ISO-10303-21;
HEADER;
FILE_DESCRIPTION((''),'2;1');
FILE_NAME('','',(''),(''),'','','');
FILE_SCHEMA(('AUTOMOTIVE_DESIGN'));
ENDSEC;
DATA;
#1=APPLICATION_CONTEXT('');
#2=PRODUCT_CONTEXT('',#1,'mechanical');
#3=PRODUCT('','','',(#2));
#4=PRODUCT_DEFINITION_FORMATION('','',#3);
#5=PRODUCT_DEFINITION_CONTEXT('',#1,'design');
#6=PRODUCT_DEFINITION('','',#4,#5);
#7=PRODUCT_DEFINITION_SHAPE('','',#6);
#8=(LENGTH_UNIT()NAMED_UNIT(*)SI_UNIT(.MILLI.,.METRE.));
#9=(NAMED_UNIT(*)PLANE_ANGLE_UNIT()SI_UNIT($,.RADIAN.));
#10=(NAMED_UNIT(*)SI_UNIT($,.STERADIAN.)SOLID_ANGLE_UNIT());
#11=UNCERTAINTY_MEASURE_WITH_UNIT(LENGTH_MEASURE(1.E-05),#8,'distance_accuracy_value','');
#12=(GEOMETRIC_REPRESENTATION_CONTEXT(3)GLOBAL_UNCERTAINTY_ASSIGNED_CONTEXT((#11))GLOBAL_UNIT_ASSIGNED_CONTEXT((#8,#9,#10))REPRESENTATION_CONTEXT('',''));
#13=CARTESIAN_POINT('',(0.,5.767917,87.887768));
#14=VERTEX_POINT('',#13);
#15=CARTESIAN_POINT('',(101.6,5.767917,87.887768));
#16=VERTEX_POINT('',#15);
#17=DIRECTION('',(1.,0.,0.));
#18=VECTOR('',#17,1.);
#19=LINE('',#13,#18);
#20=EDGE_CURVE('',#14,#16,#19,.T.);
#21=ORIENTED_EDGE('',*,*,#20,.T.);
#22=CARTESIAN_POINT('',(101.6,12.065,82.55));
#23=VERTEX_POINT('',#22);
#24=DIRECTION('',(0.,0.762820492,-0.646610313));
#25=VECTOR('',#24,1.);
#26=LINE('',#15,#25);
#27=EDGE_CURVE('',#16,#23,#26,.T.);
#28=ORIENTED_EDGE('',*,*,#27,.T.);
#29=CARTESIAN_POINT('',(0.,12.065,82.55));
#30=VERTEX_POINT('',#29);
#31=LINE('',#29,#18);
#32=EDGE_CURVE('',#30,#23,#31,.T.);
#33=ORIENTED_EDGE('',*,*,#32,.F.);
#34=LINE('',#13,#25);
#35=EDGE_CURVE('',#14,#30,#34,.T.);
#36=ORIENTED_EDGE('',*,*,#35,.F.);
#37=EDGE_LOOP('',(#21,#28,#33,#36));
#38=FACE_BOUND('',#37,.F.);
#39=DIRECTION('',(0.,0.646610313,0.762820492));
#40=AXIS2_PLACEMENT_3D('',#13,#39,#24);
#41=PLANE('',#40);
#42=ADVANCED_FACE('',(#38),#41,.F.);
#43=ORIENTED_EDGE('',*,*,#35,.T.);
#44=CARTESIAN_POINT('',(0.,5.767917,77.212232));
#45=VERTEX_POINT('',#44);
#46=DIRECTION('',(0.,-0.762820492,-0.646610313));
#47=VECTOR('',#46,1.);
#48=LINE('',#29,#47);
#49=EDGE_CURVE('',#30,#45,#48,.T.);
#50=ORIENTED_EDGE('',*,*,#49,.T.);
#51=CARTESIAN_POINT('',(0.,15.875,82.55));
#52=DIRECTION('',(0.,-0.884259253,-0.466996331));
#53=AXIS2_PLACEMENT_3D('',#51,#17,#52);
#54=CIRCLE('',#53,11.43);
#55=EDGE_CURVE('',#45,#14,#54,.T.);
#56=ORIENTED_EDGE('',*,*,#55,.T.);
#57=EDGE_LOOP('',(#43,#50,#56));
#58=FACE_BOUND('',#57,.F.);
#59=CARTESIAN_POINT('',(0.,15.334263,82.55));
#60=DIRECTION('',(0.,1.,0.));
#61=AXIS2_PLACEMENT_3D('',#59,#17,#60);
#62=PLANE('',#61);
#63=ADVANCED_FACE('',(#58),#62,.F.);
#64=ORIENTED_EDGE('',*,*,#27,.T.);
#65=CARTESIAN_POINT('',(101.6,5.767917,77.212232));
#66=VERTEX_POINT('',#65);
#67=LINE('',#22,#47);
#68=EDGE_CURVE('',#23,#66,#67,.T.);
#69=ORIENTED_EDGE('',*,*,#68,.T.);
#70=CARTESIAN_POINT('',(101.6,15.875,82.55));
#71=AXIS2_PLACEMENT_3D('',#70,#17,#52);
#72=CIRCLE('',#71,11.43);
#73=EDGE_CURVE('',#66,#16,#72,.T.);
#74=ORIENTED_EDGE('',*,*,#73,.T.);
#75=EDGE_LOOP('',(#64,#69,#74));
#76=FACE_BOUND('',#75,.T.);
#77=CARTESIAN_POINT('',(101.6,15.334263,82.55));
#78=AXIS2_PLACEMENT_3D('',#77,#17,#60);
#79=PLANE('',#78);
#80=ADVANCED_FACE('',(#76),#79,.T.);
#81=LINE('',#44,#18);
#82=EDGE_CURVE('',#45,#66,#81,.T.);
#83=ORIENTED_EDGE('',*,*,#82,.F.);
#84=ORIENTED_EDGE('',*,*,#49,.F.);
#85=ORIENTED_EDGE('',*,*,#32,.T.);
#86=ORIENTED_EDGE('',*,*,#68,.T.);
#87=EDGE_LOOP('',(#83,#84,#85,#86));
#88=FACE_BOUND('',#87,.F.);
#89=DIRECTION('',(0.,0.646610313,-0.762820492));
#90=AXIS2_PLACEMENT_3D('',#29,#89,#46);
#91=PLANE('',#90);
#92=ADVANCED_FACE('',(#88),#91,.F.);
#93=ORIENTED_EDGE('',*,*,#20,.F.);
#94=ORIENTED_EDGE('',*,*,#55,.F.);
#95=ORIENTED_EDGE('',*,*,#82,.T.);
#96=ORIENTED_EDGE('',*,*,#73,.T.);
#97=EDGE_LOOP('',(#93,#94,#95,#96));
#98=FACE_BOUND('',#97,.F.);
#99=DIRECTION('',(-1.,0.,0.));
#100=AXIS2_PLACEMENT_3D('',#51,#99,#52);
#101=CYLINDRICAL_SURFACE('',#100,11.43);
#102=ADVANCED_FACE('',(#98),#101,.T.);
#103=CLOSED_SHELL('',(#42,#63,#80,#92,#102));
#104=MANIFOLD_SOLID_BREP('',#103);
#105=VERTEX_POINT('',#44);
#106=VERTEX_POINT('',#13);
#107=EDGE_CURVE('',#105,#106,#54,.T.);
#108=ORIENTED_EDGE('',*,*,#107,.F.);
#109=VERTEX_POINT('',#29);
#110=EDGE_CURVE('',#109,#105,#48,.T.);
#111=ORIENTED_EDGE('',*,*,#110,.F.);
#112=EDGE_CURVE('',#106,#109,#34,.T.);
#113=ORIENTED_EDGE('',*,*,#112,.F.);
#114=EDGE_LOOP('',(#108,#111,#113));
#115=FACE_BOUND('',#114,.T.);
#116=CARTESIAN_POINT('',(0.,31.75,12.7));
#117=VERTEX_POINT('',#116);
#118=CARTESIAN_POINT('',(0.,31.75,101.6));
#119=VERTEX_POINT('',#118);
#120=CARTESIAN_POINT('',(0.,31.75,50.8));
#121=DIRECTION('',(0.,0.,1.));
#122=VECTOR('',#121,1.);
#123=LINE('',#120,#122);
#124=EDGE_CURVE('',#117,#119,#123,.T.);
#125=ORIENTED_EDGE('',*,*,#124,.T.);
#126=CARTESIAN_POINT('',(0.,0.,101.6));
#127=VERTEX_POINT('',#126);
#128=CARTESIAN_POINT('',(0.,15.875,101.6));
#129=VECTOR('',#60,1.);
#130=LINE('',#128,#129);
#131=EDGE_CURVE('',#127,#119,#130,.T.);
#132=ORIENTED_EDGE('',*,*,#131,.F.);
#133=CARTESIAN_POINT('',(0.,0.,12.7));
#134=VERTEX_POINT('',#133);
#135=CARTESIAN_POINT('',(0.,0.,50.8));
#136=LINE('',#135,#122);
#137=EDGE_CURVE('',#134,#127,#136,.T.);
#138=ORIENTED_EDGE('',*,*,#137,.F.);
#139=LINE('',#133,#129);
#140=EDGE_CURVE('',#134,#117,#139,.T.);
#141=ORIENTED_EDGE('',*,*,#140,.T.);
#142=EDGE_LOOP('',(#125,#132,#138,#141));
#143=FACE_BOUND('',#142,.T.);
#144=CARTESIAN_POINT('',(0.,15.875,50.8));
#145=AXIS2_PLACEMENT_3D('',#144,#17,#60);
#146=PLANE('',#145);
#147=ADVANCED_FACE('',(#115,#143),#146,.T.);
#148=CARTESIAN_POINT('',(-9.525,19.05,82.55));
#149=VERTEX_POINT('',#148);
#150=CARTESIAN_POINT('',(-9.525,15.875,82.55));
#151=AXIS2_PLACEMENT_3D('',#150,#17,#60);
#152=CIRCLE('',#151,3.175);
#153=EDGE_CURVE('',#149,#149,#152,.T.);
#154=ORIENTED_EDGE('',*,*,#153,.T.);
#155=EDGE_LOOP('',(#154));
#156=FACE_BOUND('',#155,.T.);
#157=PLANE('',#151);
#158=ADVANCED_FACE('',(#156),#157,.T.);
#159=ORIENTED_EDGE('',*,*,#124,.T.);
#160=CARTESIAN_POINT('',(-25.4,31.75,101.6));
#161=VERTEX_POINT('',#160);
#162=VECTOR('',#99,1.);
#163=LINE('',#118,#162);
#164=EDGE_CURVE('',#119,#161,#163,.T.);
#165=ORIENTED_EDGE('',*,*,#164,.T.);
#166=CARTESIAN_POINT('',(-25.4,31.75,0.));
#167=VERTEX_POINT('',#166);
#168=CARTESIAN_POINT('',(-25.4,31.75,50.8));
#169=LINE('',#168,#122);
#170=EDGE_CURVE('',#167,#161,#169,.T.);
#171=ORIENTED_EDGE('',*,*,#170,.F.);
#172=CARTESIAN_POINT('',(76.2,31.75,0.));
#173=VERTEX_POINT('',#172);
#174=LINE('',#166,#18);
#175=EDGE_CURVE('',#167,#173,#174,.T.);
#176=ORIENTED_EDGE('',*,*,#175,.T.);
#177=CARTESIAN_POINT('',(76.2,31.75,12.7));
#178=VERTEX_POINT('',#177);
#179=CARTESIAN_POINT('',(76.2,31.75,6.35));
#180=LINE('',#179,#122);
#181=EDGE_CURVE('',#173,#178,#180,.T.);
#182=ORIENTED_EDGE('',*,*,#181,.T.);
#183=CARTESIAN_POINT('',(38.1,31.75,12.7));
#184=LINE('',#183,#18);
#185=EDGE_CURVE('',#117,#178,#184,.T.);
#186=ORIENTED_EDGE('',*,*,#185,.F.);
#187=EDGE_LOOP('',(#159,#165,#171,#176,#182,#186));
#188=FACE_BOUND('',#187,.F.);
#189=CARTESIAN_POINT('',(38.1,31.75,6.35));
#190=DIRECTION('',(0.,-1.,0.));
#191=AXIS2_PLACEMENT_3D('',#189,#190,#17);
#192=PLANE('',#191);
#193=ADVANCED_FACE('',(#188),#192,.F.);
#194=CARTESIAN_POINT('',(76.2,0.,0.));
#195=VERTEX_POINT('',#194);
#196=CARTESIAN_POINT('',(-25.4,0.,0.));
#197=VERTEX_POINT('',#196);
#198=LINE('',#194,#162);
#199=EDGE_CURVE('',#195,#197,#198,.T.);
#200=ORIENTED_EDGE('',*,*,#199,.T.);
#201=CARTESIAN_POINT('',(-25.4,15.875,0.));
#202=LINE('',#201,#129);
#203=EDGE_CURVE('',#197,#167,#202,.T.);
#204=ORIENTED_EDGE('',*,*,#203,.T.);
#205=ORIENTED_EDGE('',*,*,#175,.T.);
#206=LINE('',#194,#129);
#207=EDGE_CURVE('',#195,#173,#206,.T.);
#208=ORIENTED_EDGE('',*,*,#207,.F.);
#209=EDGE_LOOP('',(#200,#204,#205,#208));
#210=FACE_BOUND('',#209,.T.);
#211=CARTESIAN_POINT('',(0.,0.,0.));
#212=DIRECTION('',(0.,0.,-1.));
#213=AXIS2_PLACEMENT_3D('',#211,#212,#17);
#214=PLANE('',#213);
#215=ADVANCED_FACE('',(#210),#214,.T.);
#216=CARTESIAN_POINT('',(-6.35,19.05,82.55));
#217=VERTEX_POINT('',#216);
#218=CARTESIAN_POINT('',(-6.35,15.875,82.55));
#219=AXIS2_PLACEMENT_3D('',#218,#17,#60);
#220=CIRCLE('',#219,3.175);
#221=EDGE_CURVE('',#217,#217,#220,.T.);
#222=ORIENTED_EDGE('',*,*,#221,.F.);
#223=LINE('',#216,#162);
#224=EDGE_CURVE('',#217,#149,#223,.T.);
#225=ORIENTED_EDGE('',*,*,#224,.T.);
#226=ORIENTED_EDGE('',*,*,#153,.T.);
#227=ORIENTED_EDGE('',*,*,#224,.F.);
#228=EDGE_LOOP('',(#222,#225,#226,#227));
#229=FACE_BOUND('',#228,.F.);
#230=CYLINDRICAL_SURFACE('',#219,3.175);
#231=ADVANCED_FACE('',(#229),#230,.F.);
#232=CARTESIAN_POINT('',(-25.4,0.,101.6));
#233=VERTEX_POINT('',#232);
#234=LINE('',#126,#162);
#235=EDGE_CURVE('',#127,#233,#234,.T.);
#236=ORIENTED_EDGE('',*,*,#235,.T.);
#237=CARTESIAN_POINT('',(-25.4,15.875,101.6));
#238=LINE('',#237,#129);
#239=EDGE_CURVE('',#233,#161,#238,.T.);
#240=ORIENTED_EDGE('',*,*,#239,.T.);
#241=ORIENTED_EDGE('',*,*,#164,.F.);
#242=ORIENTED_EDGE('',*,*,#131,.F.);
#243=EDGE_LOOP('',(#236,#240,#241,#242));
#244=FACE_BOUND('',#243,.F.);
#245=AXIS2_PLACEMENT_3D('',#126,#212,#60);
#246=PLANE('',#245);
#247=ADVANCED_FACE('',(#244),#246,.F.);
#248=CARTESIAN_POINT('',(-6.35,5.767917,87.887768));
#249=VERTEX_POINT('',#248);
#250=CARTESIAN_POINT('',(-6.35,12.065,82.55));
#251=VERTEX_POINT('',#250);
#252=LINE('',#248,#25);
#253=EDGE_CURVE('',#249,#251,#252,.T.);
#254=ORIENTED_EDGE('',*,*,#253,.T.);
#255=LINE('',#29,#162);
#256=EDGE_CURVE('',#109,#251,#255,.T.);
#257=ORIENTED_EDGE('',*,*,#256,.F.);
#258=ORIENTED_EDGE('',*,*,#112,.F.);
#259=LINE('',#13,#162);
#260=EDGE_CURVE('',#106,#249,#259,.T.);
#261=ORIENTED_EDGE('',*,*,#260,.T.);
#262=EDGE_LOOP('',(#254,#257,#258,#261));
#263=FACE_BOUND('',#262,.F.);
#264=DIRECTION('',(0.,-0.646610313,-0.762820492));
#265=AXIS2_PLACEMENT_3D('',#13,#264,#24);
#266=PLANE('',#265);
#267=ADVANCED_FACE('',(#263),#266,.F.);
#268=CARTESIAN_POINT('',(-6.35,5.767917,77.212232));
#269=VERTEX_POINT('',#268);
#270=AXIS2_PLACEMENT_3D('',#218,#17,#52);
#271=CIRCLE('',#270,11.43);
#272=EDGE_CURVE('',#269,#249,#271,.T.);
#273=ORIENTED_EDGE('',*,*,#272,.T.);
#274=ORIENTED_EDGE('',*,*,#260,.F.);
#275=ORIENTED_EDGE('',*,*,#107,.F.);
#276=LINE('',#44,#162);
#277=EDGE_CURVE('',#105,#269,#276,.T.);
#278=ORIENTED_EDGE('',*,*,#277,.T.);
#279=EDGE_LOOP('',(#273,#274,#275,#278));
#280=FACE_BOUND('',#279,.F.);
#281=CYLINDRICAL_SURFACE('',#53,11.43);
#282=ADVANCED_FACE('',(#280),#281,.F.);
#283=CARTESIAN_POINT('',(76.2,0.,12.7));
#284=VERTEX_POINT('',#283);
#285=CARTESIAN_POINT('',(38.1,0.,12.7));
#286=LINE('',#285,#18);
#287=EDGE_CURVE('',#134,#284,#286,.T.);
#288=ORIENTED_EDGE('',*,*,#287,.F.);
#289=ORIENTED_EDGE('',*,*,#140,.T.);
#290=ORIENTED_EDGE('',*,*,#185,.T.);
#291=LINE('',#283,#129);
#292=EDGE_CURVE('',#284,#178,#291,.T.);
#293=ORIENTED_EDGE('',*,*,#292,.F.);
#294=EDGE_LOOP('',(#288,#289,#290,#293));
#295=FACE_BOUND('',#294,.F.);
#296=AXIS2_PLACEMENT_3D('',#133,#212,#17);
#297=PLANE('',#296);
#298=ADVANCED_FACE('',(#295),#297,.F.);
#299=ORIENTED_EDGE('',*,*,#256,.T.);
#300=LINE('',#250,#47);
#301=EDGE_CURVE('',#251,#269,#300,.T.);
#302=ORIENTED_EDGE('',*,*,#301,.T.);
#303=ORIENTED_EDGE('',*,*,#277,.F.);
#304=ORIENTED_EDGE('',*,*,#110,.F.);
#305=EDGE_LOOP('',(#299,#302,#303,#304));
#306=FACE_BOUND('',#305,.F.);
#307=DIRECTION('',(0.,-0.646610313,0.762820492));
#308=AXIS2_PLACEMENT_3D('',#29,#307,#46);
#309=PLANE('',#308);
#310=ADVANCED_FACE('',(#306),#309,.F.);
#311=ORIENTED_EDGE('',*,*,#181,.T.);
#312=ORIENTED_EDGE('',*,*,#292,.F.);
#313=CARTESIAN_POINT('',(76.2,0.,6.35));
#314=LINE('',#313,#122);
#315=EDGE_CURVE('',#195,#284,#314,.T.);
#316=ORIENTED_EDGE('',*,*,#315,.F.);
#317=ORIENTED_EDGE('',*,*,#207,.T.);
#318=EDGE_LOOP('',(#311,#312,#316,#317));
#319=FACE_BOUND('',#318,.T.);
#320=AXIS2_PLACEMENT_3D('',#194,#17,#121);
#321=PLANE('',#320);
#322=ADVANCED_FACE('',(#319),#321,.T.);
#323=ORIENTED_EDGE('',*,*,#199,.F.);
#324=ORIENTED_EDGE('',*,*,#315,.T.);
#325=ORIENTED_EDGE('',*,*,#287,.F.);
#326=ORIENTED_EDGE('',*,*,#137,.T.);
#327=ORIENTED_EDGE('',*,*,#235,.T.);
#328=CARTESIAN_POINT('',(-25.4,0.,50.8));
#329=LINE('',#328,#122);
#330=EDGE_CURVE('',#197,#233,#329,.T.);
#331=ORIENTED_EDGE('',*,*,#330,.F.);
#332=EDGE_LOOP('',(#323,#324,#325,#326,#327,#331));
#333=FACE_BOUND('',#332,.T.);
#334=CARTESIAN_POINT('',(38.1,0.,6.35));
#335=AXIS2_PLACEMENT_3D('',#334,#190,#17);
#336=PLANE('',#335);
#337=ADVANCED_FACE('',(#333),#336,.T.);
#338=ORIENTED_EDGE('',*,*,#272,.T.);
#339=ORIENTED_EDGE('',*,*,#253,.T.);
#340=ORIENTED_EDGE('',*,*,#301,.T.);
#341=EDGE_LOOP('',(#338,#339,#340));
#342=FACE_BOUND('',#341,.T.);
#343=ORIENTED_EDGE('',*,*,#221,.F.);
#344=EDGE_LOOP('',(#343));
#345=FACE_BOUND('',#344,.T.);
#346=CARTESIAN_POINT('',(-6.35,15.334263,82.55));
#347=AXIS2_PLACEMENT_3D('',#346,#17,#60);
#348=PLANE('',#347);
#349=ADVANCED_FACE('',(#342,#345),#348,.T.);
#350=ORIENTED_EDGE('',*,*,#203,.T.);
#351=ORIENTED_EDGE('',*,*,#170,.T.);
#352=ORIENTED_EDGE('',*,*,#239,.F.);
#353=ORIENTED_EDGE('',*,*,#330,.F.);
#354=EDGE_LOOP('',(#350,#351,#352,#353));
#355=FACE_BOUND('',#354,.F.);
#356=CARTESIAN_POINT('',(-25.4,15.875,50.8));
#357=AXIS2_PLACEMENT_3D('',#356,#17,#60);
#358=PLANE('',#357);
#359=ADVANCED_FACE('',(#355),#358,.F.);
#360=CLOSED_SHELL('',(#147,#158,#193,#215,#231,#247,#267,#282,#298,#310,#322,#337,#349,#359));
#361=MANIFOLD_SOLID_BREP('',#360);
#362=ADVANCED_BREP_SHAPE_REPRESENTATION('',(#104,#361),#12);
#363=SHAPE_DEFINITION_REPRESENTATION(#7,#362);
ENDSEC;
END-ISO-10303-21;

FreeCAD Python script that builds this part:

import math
import FreeCAD as App
import Part
import Sketcher

V = App.Vector
Q = App.Units.Quantity


def add_polygon(sketch, points):
    """Adds a closed chain of lines whose ends are joined by coincident constraints."""
    first, n = sketch.GeometryCount, len(points)
    for a, b in zip(points, points[1:] + points[:1]):
        sketch.addGeometry(Part.LineSegment(App.Vector(*a, 0), App.Vector(*b, 0)), False)
    for i in range(n):
        sketch.addConstraint(Sketcher.Constraint("Coincident", first + i, 2, first + (i + 1) % n, 1))

doc = App.newDocument("Part")
body = doc.addObject("PartDesign::Body", "Body")
body.AllowCompound = True

# Sketch on YZ plane
sketch1 = body.newObject("Sketcher::SketchObject", "Sketch")
sketch1.AttachmentSupport = (doc.getObject("YZ_Plane"), [""])
sketch1.MapMode = "FlatFace"
add_polygon(sketch1, [(0, 102), (0, 0), (32, 0), (32, 102)])  # lines 0-3
sketch1.addConstraint(Sketcher.Constraint("Vertical", 0))
sketch1.addConstraint(Sketcher.Constraint("Horizontal", 1))
sketch1.addConstraint(Sketcher.Constraint("Vertical", 2))
sketch1.addConstraint(Sketcher.Constraint("Horizontal", 3))
sketch1.addConstraint(Sketcher.Constraint("Coincident", 0, 2, -1, 1))
sketch1.addConstraint(Sketcher.Constraint("DistanceY", 0, 2, 0, 1, Q("4 in")))
sketch1.addConstraint(Sketcher.Constraint("DistanceX", 1, 1, 1, 2, Q("1.25 in")))
pad1 = body.newObject("PartDesign::Pad", "Pad")
pad1.Profile = sketch1
pad1.Length = Q("1 in")
pad1.Reversed = True

# Sketch on YZ plane
sketch2 = body.newObject("Sketcher::SketchObject", "Sketch001")
sketch2.AttachmentSupport = (doc.getObject("YZ_Plane"), [""])
sketch2.MapMode = "FlatFace"
sketch2.addGeometry(Part.LineSegment(V(12, 83, 0), V(6, 77, 0)), False)
sketch2.addGeometry(Part.ArcOfCircle(Part.Circle(V(16, 83, 0), V(0, 0, 1), 11), math.radians(-152), math.radians(152)), False)
sketch2.addGeometry(Part.LineSegment(V(6, 88, 0), V(12, 83, 0)), False)
sketch2.addConstraint(Sketcher.Constraint("Coincident", 0, 2, 1, 1))
sketch2.addConstraint(Sketcher.Constraint("Coincident", 1, 2, 2, 1))
sketch2.addConstraint(Sketcher.Constraint("Coincident", 2, 2, 0, 1))
sketch2.addConstraint(Sketcher.Constraint("Horizontal", 1, 3, 2, 2))
sketch2.addConstraint(Sketcher.Constraint("Vertical", 0, 2, 1, 2))
sketch2.addConstraint(Sketcher.Constraint("Radius", 1, Q("0.45 in")))
sketch2.addConstraint(Sketcher.Constraint("DistanceY", -1, 1, 1, 3, Q("3.25 in")))
sketch2.addConstraint(Sketcher.Constraint("DistanceX", 2, 2, 1, 3, Q("0.15 in")))
sketch2.addConstraint(Sketcher.Constraint("Distance", 0, Q("0.325 in")))
sketch2.addConstraint(Sketcher.Constraint("DistanceX", -1, 1, 1, 3, Q("0.625 in")))
pocket1 = body.newObject("PartDesign::Pocket", "Pocket")
pocket1.Profile = sketch2
pocket1.Length = Q("0.25 in")

# Sketch on YZ plane
sketch3 = body.newObject("Sketcher::SketchObject", "Sketch002")
sketch3.AttachmentSupport = (doc.getObject("YZ_Plane"), [""])
sketch3.MapMode = "FlatFace"
sketch3.AttachmentOffset = App.Placement(V(0, 0, -0.25 * 25.4), App.Rotation())
sketch3.addGeometry(Part.Circle(V(15.9, 82.5, 0), V(0, 0, 1), 3.2), False)
sketch3.addConstraint(Sketcher.Constraint("Diameter", 0, Q("0.25 in")))
sketch3.addConstraint(Sketcher.Constraint("DistanceY", -1, 1, 0, 3, Q("3.25 in")))
sketch3.addConstraint(Sketcher.Constraint("DistanceX", -1, 1, 0, 3, Q("0.625 in")))
pocket2 = body.newObject("PartDesign::Pocket", "Pocket001")
pocket2.Profile = sketch3
pocket2.Length = Q("0.125 in")

# Sketch on XZ plane
sketch4 = body.newObject("Sketcher::SketchObject", "Sketch003")
sketch4.AttachmentSupport = (doc.getObject("XZ_Plane"), [""])
sketch4.MapMode = "FlatFace"
add_polygon(sketch4, [(0, 13), (0, 0), (76, 0), (76, 13)])  # lines 0-3
sketch4.addConstraint(Sketcher.Constraint("Vertical", 0))
sketch4.addConstraint(Sketcher.Constraint("Horizontal", 1))
sketch4.addConstraint(Sketcher.Constraint("Vertical", 2))
sketch4.addConstraint(Sketcher.Constraint("Horizontal", 3))
sketch4.addConstraint(Sketcher.Constraint("Coincident", 0, 2, -1, 1))
sketch4.addConstraint(Sketcher.Constraint("DistanceX", 1, 1, 1, 2, Q("3 in")))
sketch4.addConstraint(Sketcher.Constraint("DistanceY", 0, 2, 0, 1, Q("0.5 in")))
pad2 = body.newObject("PartDesign::Pad", "Pad001")
pad2.Profile = sketch4
pad2.Length = Q("1.25 in")
pad2.Reversed = True

# Sketch on YZ plane
sketch5 = body.newObject("Sketcher::SketchObject", "Sketch004")
sketch5.AttachmentSupport = (doc.getObject("YZ_Plane"), [""])
sketch5.MapMode = "FlatFace"
sketch5.addGeometry(Part.LineSegment(V(12, 83, 0), V(6, 77, 0)), False)
sketch5.addGeometry(Part.ArcOfCircle(Part.Circle(V(16, 83, 0), V(0, 0, 1), 11), math.radians(-152), math.radians(152)), False)
sketch5.addGeometry(Part.LineSegment(V(6, 88, 0), V(12, 83, 0)), False)
sketch5.addConstraint(Sketcher.Constraint("Coincident", 0, 2, 1, 1))
sketch5.addConstraint(Sketcher.Constraint("Coincident", 1, 2, 2, 1))
sketch5.addConstraint(Sketcher.Constraint("Coincident", 2, 2, 0, 1))
sketch5.addConstraint(Sketcher.Constraint("Horizontal", 1, 3, 2, 2))
sketch5.addConstraint(Sketcher.Constraint("Vertical", 0, 2, 1, 2))
sketch5.addConstraint(Sketcher.Constraint("Radius", 1, Q("0.45 in")))
sketch5.addConstraint(Sketcher.Constraint("DistanceY", -1, 1, 1, 3, Q("3.25 in")))
sketch5.addConstraint(Sketcher.Constraint("DistanceX", 2, 2, 1, 3, Q("0.15 in")))
sketch5.addConstraint(Sketcher.Constraint("Distance", 0, Q("0.325 in")))
sketch5.addConstraint(Sketcher.Constraint("DistanceX", -1, 1, 1, 3, Q("0.625 in")))
pad3 = body.newObject("PartDesign::Pad", "Pad002")
pad3.Profile = sketch5
pad3.Length = Q("4 in")

doc.recompute()
